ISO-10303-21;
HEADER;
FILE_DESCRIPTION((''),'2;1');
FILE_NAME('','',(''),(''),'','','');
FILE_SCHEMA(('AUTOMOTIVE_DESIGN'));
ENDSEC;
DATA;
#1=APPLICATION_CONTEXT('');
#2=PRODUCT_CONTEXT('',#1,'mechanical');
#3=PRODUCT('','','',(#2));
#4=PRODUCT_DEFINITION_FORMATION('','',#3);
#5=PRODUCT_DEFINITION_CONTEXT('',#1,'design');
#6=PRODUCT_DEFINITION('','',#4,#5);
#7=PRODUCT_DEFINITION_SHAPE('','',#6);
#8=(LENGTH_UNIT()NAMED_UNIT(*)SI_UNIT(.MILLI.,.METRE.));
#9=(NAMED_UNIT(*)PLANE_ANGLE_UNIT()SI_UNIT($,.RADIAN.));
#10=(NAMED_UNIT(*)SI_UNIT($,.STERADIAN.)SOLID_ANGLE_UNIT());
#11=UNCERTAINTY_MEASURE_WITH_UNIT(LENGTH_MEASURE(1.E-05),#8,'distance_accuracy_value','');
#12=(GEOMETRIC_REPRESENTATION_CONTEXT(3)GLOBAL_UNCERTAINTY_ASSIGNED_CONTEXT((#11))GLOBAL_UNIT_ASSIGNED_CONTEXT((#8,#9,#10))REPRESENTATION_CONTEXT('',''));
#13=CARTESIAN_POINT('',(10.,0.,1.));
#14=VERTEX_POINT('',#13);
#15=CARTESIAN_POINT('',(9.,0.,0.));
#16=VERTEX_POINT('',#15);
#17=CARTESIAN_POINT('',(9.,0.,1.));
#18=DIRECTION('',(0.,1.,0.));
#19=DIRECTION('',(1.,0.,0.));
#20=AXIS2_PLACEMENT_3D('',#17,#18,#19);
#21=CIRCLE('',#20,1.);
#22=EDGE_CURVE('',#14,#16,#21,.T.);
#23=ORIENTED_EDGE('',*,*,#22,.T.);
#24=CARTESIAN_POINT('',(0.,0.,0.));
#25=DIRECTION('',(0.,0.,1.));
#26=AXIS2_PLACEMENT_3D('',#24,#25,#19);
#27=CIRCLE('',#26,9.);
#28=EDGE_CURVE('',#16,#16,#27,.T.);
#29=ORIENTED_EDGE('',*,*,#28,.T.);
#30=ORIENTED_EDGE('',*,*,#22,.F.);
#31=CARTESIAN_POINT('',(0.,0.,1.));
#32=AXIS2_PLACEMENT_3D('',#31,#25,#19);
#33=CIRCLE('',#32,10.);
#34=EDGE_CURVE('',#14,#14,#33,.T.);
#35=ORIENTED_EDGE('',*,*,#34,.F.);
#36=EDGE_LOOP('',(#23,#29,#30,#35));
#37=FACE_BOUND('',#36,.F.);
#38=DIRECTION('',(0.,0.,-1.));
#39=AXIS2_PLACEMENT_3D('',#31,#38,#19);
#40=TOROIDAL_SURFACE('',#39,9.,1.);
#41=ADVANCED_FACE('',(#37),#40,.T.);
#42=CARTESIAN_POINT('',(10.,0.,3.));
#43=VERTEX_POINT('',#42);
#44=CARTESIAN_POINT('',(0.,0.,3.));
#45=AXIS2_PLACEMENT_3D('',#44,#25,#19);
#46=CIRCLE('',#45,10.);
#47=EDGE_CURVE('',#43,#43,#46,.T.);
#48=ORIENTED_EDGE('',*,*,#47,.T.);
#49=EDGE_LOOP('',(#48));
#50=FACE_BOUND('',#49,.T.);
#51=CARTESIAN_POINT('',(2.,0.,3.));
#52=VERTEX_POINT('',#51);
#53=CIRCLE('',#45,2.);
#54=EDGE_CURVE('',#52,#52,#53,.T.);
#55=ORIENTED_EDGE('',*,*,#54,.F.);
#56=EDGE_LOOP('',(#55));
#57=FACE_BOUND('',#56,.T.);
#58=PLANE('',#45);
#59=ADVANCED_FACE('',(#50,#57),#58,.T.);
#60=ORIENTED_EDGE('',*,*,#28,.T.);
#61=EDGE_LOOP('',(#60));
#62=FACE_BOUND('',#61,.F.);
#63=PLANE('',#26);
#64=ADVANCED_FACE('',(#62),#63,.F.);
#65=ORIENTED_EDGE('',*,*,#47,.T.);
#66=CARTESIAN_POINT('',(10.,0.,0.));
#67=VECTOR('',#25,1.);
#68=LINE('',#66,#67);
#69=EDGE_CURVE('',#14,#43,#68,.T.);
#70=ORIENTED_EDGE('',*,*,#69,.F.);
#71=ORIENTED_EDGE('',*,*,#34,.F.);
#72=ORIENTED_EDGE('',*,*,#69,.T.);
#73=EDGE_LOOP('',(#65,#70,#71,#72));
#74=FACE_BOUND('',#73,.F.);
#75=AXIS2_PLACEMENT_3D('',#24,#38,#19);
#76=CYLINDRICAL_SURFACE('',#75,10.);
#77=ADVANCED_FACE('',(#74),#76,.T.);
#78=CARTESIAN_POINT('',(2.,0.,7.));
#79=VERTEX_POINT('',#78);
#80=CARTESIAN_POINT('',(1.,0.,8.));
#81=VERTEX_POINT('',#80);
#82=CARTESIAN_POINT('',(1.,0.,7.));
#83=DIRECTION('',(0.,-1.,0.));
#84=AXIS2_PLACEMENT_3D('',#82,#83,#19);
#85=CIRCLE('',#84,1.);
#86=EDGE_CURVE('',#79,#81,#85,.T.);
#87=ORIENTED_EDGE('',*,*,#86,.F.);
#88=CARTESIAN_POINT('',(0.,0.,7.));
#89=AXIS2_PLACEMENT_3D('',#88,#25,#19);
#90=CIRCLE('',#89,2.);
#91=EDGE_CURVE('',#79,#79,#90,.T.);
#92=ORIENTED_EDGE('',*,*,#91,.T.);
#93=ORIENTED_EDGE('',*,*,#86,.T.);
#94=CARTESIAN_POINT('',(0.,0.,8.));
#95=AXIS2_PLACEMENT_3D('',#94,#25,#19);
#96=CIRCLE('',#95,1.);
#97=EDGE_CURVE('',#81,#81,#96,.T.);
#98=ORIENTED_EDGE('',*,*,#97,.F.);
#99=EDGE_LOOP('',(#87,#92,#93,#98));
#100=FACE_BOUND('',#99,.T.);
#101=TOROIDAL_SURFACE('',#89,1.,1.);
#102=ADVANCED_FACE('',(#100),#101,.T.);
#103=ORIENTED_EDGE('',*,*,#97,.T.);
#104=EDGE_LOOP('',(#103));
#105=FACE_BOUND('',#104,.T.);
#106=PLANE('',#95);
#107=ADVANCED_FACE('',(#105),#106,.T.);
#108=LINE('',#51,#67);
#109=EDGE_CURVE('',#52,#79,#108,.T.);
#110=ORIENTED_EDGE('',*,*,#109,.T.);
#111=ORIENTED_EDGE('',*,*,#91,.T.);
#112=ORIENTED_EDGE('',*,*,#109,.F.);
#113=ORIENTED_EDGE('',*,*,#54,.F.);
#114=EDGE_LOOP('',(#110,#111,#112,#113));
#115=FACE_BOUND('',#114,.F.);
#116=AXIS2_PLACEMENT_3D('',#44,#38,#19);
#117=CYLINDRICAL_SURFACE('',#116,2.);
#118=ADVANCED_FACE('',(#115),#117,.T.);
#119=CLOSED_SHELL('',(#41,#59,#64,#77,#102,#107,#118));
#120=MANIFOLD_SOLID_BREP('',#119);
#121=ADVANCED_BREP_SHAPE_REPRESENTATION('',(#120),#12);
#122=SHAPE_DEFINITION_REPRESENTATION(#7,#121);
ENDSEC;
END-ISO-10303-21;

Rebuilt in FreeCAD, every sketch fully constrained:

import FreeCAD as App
import Part
import Sketcher
from FreeCAD import Vector


def edges_at(feature, points):
    """Names of the edges that pass closest to the given points."""
    edges = feature.Shape.Edges
    near = lambda p: min(range(len(edges)), key=lambda i: edges[i].distToShape(Part.Vertex(*p))[0])
    return sorted({f"Edge{near(p) + 1}" for p in points})

doc = App.newDocument("Part")
body = doc.addObject("PartDesign::Body", "Body")

sketch1 = body.newObject("Sketcher::SketchObject", "Sketch")
sketch1.AttachmentSupport = (doc.getObject("XY_Plane"), [""])
sketch1.MapMode = "FlatFace"
sketch1.addGeometry(Part.Circle(Vector(0, 0, 0), Vector(0, 0, 1), 10), False)
sketch1.addConstraint([
    Sketcher.Constraint("Coincident", 0, 3, -1, 1),
    Sketcher.Constraint("Diameter", 0, 20.0),
])
pad1 = body.newObject("PartDesign::Pad", "Pad")
pad1.Profile = sketch1
pad1.Length = 3

sketch2 = body.newObject("Sketcher::SketchObject", "Sketch001")
sketch2.AttachmentSupport = (doc.getObject("XY_Plane"), [""])
sketch2.MapMode = "FlatFace"
sketch2.AttachmentOffset = App.Placement(Vector(0, 0, 3), App.Rotation())
sketch2.addGeometry(Part.Circle(Vector(0, 0, 0), Vector(0, 0, 1), 2), False)
sketch2.addConstraint([
    Sketcher.Constraint("Coincident", 0, 3, -1, 1),
    Sketcher.Constraint("Diameter", 0, 4.0),
])
pad2 = body.newObject("PartDesign::Pad", "Pad001")
pad2.Profile = sketch2
pad2.Length = 5
doc.recompute()

fillet = body.newObject("PartDesign::Fillet", "Fillet")
fillet.Base = (pad2, edges_at(pad2, [(-2, 0, 8)]))
fillet.Radius = 1
doc.recompute()

fillet2 = body.newObject("PartDesign::Fillet", "Fillet001")
fillet2.Base = (fillet, edges_at(fillet, [(-10, 0, 0)]))
fillet2.Radius = 1

doc.recompute()
